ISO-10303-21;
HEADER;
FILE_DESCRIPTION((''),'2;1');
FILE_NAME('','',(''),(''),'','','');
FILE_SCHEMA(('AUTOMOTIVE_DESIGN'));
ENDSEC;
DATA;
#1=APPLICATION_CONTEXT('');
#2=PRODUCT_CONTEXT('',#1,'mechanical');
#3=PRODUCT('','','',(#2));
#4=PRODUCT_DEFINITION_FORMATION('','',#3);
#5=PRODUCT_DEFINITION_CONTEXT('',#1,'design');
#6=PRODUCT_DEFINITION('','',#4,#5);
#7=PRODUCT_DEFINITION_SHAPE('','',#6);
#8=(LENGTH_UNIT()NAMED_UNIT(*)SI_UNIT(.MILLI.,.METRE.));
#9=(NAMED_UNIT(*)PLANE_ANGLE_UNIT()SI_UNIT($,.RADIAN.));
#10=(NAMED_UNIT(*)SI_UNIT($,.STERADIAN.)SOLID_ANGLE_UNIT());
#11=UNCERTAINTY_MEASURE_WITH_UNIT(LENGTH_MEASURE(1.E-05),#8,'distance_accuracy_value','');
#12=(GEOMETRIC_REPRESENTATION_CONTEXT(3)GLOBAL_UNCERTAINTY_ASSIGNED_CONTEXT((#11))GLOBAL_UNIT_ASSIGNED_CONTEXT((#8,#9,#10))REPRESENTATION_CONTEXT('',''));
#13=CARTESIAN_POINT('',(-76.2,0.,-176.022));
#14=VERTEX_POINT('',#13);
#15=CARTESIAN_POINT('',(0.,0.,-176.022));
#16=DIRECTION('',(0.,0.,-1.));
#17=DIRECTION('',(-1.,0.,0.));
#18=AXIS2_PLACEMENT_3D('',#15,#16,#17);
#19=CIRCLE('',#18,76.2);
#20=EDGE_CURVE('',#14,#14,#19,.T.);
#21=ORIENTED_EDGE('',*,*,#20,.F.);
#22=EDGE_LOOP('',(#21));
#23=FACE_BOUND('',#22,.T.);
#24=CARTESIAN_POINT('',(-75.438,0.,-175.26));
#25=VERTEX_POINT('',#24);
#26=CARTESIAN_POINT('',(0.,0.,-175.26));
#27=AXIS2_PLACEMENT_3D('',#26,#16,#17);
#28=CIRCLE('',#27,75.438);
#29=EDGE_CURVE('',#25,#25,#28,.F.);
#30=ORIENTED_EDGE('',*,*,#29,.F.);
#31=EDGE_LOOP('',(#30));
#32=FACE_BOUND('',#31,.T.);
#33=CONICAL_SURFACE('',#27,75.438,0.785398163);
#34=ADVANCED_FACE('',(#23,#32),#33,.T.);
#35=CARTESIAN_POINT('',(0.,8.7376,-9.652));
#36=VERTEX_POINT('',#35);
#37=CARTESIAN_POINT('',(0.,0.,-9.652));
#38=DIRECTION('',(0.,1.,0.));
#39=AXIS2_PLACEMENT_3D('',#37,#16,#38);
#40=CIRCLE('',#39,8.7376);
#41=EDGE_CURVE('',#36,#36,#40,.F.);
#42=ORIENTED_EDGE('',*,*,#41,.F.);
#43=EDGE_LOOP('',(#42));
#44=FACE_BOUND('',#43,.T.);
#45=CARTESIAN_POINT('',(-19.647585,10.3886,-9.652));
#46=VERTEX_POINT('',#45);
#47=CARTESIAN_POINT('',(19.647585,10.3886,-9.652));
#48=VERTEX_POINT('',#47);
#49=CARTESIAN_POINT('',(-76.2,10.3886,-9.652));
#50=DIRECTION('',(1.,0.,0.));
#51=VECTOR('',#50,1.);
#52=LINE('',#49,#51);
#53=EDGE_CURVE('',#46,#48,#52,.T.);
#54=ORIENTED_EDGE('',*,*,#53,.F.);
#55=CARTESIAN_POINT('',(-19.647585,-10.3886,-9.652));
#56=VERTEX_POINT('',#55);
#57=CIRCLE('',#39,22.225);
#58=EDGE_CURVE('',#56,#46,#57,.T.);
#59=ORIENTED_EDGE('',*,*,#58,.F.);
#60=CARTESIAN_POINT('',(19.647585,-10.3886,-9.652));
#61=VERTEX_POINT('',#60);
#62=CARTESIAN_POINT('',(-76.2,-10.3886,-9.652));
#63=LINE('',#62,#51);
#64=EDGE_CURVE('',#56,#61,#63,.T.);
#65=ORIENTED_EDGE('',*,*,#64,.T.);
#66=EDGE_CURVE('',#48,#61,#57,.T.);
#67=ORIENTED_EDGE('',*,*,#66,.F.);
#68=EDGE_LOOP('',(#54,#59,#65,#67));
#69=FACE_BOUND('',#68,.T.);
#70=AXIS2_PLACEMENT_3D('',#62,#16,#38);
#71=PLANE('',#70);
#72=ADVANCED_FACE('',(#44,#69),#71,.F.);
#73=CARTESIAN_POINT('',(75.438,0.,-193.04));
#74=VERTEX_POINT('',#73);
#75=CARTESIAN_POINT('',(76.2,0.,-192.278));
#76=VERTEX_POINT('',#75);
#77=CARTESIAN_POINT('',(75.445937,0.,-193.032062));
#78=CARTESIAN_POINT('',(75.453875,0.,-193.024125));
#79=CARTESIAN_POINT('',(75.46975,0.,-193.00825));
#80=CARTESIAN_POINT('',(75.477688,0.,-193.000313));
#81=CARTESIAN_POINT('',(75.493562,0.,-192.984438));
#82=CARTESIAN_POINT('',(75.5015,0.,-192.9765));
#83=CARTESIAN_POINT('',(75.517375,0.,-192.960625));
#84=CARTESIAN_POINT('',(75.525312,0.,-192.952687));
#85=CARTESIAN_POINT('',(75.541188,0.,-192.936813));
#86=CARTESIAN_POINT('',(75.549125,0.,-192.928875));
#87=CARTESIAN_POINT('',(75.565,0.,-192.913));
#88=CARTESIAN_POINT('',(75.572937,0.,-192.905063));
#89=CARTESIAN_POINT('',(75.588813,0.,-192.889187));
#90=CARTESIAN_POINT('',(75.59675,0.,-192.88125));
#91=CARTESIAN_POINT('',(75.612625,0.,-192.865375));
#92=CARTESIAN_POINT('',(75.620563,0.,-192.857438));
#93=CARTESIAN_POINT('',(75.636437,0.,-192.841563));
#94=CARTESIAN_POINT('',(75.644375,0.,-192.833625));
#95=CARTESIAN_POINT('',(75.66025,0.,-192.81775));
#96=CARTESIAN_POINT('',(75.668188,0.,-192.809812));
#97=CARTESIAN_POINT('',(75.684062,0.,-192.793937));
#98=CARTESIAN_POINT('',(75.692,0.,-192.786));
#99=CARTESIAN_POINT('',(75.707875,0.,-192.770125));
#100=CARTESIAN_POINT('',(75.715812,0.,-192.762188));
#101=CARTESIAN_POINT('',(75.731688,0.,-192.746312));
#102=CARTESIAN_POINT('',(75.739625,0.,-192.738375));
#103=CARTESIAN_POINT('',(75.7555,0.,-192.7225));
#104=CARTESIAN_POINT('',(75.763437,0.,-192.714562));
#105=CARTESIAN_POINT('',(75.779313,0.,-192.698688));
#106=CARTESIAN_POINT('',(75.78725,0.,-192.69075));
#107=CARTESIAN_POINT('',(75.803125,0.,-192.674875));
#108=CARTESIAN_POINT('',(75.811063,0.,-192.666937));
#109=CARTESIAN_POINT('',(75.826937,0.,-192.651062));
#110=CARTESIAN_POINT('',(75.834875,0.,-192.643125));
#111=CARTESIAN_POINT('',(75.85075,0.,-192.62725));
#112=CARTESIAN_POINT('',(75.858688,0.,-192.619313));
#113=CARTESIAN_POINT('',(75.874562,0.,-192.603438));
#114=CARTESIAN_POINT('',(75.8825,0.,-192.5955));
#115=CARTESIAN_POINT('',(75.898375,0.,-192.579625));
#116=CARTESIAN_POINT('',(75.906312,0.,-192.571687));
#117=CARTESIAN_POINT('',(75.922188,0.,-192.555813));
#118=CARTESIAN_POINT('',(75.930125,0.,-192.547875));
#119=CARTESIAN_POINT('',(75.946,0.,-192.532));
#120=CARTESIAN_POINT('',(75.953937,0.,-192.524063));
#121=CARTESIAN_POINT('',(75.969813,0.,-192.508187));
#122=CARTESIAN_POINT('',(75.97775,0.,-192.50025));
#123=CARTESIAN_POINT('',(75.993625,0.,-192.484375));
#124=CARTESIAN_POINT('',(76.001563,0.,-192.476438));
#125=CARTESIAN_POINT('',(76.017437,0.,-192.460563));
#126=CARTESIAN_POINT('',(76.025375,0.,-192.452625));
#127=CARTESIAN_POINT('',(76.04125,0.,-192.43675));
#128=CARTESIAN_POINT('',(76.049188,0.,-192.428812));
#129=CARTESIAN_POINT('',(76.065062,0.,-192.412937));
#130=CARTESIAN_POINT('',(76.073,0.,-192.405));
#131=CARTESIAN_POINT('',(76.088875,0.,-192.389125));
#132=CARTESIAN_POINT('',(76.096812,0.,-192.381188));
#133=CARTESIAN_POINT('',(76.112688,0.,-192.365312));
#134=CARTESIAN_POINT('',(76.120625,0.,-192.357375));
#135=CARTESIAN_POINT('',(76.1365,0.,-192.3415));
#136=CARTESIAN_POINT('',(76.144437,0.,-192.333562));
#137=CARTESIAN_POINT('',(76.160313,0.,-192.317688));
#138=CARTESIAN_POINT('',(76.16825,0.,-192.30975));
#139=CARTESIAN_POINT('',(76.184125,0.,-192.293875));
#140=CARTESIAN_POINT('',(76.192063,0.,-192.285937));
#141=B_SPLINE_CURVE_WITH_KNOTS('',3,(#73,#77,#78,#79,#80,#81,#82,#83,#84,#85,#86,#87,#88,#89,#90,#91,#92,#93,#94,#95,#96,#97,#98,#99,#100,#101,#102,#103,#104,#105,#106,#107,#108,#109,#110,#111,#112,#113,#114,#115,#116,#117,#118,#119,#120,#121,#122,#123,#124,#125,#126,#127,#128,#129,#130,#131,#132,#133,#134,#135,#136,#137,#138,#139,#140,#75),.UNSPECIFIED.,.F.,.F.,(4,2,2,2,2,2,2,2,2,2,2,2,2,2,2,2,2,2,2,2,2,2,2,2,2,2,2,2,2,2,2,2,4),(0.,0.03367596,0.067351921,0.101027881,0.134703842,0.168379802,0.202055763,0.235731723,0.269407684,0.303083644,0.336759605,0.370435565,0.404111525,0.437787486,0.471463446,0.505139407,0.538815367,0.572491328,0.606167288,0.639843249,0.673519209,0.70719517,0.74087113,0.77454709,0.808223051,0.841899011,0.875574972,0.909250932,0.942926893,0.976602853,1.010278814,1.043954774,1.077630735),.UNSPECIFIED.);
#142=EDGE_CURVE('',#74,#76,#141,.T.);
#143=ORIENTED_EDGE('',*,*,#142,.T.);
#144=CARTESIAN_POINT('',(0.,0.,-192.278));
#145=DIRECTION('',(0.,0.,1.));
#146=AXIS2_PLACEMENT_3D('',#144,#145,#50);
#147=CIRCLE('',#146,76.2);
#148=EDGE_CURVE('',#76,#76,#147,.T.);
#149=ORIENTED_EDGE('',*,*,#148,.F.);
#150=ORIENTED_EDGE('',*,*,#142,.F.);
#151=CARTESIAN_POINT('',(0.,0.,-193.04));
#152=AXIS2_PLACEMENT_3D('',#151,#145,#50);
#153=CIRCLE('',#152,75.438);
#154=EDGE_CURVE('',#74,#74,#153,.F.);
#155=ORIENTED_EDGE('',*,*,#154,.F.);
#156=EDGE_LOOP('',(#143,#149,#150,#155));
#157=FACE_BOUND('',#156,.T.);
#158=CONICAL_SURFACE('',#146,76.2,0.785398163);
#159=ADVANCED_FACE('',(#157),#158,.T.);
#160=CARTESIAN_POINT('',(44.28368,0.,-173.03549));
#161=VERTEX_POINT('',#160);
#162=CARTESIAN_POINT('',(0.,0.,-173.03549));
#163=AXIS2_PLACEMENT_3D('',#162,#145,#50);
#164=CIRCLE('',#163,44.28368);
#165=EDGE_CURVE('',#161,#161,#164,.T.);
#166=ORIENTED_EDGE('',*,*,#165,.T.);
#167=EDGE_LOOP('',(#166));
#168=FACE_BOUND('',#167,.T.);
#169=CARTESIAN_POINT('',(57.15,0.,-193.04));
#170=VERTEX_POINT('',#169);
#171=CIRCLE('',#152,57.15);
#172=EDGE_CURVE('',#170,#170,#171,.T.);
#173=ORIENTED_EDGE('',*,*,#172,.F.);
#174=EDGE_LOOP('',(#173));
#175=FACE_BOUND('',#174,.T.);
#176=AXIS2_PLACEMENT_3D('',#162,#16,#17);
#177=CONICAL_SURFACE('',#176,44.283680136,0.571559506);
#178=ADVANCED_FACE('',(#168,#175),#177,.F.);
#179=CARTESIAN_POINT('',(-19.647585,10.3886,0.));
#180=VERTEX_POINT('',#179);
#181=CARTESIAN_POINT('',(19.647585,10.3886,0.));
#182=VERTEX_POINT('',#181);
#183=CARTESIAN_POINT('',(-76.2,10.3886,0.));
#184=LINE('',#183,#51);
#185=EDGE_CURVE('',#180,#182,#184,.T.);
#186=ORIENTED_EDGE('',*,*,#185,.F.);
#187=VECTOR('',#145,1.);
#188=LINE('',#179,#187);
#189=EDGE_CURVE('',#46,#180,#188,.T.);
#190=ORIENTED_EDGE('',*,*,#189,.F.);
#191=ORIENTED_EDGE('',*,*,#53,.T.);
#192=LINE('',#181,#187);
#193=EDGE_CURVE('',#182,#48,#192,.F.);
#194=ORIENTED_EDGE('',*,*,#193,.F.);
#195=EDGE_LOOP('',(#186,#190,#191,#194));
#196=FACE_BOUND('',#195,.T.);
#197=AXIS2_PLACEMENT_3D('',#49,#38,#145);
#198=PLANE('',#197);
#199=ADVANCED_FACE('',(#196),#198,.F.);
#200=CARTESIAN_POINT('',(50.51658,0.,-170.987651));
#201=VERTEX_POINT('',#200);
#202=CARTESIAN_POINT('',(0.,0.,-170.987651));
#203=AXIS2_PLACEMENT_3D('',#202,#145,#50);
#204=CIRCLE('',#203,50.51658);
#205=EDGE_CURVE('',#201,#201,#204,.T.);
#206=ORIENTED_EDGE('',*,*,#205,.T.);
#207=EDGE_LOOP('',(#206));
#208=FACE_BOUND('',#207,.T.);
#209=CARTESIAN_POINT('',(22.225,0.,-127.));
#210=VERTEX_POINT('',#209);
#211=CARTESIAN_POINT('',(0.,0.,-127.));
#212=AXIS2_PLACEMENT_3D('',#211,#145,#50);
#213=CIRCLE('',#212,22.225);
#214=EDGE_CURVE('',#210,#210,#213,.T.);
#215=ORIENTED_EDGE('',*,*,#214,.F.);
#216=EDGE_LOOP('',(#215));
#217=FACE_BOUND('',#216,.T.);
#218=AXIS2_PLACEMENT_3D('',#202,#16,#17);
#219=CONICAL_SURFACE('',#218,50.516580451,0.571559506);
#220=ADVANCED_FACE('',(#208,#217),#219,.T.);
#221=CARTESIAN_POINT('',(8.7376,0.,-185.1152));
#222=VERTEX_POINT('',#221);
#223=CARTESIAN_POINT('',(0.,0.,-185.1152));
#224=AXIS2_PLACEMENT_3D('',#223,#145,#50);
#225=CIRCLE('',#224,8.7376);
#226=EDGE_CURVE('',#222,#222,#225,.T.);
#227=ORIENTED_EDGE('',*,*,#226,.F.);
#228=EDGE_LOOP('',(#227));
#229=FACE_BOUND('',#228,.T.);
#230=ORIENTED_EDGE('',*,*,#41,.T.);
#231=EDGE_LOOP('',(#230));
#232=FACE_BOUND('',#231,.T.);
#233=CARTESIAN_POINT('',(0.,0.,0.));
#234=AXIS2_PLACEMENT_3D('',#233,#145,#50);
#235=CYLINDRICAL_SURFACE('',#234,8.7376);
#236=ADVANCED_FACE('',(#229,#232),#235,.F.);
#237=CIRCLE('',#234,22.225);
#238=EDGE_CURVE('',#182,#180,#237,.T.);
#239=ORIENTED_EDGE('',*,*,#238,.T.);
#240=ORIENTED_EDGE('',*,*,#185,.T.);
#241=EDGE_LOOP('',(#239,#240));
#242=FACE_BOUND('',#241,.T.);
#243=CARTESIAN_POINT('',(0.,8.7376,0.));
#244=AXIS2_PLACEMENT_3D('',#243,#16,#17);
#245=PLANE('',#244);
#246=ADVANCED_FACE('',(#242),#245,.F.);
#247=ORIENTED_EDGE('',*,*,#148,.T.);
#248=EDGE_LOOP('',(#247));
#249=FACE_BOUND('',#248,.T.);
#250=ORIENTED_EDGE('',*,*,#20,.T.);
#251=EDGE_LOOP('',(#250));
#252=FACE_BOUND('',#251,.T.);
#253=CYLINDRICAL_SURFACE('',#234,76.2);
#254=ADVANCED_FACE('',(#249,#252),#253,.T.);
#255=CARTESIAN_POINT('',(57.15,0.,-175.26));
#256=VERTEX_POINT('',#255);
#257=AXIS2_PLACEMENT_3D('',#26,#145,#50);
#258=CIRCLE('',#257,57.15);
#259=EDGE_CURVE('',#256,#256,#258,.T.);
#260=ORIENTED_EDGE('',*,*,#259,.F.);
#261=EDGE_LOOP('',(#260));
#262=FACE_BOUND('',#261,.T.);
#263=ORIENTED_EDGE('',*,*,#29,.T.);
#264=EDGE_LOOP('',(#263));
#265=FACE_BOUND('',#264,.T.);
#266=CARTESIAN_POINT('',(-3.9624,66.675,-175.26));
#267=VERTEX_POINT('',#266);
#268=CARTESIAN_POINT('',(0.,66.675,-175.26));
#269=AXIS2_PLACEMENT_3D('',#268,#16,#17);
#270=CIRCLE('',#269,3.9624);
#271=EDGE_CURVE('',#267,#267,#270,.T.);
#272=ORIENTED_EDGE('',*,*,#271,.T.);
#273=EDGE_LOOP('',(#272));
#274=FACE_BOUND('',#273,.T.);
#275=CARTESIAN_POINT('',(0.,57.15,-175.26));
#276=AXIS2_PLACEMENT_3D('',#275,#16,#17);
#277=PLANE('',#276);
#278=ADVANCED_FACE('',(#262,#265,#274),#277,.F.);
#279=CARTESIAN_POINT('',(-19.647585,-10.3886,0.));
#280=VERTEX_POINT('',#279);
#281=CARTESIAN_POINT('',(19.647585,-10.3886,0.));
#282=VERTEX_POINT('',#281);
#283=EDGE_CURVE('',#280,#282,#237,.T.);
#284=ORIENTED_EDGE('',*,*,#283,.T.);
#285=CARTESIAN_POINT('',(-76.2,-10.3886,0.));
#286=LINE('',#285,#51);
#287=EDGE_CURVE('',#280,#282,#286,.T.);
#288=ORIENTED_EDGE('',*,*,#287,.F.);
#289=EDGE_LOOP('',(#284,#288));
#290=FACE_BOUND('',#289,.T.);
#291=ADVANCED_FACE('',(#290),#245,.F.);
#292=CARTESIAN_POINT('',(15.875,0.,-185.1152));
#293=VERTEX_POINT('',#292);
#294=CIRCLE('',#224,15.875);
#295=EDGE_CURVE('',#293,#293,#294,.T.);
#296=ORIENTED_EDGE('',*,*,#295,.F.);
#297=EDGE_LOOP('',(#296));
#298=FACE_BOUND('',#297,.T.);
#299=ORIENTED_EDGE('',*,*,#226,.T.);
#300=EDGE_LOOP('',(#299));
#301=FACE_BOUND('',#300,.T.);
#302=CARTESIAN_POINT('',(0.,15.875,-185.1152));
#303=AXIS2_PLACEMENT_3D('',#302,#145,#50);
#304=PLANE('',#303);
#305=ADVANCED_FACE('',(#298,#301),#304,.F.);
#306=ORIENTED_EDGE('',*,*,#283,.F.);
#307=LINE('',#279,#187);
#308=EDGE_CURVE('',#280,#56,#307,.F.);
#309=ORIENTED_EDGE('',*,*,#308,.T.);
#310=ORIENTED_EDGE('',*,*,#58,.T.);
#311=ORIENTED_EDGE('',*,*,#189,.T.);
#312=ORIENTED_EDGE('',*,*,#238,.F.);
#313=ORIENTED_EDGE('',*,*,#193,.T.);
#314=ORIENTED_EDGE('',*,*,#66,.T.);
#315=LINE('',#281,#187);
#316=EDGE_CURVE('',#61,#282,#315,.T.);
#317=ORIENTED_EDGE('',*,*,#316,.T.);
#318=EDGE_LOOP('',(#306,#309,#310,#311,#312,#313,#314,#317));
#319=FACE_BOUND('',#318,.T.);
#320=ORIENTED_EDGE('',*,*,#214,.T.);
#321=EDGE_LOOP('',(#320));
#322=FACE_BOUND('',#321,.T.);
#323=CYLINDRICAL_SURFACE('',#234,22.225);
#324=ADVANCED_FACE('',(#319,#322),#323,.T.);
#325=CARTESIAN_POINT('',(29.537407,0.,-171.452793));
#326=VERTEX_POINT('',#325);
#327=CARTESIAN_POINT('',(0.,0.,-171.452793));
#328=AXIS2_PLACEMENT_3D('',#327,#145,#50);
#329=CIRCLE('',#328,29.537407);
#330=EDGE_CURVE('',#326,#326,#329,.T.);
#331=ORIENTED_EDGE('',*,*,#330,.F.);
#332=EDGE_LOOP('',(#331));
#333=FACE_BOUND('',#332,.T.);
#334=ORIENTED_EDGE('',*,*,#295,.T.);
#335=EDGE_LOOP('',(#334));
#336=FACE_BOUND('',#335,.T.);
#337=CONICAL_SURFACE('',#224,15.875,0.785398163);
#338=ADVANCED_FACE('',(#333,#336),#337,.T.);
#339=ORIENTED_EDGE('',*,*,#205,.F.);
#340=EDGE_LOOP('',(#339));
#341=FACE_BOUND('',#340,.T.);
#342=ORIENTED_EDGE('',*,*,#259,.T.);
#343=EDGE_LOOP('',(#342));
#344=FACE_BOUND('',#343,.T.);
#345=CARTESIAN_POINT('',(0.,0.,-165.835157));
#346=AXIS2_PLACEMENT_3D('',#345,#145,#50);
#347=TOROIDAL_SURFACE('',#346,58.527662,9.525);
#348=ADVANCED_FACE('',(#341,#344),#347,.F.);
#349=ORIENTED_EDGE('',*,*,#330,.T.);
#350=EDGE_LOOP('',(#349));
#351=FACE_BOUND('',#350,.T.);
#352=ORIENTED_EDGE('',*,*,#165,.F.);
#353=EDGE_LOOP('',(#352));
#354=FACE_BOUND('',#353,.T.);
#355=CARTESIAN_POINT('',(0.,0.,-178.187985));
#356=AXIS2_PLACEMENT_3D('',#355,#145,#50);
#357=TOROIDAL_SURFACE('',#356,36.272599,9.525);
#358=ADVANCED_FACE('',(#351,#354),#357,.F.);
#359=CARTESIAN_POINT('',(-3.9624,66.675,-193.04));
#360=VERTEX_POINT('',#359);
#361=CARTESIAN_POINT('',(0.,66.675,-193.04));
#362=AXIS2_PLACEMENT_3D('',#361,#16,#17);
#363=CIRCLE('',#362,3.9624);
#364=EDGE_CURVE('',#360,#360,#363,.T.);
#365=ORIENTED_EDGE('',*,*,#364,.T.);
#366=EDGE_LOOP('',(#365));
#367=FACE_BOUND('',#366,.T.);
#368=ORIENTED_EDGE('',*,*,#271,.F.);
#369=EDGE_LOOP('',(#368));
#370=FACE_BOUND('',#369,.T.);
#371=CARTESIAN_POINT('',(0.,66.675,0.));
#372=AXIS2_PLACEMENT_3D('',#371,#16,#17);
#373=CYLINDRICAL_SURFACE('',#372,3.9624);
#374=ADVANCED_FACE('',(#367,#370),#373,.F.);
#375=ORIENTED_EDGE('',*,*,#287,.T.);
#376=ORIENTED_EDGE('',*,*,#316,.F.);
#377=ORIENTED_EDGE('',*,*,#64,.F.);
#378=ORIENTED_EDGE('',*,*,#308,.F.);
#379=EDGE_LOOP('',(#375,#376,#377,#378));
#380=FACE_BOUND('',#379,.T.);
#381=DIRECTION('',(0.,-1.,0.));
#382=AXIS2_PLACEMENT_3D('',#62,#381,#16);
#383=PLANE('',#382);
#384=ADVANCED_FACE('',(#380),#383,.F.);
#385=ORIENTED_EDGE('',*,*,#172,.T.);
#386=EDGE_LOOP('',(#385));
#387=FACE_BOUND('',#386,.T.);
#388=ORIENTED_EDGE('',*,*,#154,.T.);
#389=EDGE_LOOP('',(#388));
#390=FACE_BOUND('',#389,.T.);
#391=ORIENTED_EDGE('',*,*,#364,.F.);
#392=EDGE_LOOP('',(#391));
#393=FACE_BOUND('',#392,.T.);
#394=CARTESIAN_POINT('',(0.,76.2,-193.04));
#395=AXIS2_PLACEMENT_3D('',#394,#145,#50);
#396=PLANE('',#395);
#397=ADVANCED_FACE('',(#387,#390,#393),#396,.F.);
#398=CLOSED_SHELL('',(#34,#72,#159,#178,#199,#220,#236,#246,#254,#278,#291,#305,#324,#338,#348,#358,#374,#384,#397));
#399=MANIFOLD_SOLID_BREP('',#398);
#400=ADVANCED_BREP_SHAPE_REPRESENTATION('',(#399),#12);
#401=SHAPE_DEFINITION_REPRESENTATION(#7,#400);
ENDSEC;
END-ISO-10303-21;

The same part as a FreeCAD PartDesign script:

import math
import FreeCAD as App
import Part
import Sketcher

V = App.Vector
Q = App.Units.Quantity


def edges_at(feature, points):
    """Names of the edges that pass closest to the given points."""
    edges = feature.Shape.Edges
    near = lambda p: min(range(len(edges)), key=lambda i: edges[i].distToShape(Part.Vertex(*p))[0])
    return sorted({f"Edge{near(p) + 1}" for p in points})


def add_polygon(sketch, points):
    """Adds a closed chain of lines whose ends are joined by coincident constraints."""
    first, n = sketch.GeometryCount, len(points)
    for a, b in zip(points, points[1:] + points[:1]):
        sketch.addGeometry(Part.LineSegment(App.Vector(*a, 0), App.Vector(*b, 0)), False)
    for i in range(n):
        sketch.addConstraint(Sketcher.Constraint("Coincident", first + i, 2, first + (i + 1) % n, 1))

doc = App.newDocument("Part")
body = doc.addObject("PartDesign::Body", "Body")

# Sketch on YZ plane
sketch1 = body.newObject("Sketcher::SketchObject", "Sketch")
sketch1.AttachmentSupport = (doc.getObject("YZ_Plane"), [""])
sketch1.MapMode = "FlatFace"
sketch1.addGeometry(Part.LineSegment(V(22, 0, 0), V(9, 0, 0)), False)
sketch1.addGeometry(Part.LineSegment(V(9, 0, 0), V(9, -185, 0)), False)
sketch1.addGeometry(Part.LineSegment(V(9, -185, 0), V(16, -185, 0)), False)
sketch1.addGeometry(Part.LineSegment(V(16, -185, 0), V(30, -171, 0)), False)
sketch1.addGeometry(Part.ArcOfCircle(Part.Circle(V(36, -178, 0), V(0, 0, 1), 10), math.radians(33), math.radians(135)), False)
sketch1.addGeometry(Part.LineSegment(V(44, -173, 0), V(57, -193, 0)), False)
sketch1.addGeometry(Part.LineSegment(V(57, -193, 0), V(76, -193, 0)), False)
sketch1.addGeometry(Part.LineSegment(V(76, -193, 0), V(76, -175, 0)), False)
sketch1.addGeometry(Part.LineSegment(V(76, -175, 0), V(57, -175, 0)), False)
sketch1.addGeometry(Part.ArcOfCircle(Part.Circle(V(59, -166, 0), V(0, 0, 1), 10), math.radians(-147), math.radians(-98)), False)
sketch1.addGeometry(Part.LineSegment(V(51, -171, 0), V(22, -127, 0)), False)
sketch1.addGeometry(Part.LineSegment(V(22, -127, 0), V(22, 0, 0)), False)
sketch1.addConstraint(Sketcher.Constraint("Coincident", 0, 2, 1, 1))
sketch1.addConstraint(Sketcher.Constraint("Coincident", 1, 2, 2, 1))
sketch1.addConstraint(Sketcher.Constraint("Coincident", 2, 2, 3, 1))
sketch1.addConstraint(Sketcher.Constraint("Tangent", 3, 2, 4, 2))
sketch1.addConstraint(Sketcher.Constraint("Tangent", 4, 1, 5, 1))
sketch1.addConstraint(Sketcher.Constraint("Coincident", 5, 2, 6, 1))
sketch1.addConstraint(Sketcher.Constraint("Coincident", 6, 2, 7, 1))
sketch1.addConstraint(Sketcher.Constraint("Coincident", 7, 2, 8, 1))
sketch1.addConstraint(Sketcher.Constraint("Coincident", 8, 2, 9, 2))
sketch1.addConstraint(Sketcher.Constraint("Tangent", 9, 1, 10, 1))
sketch1.addConstraint(Sketcher.Constraint("Coincident", 10, 2, 11, 1))
sketch1.addConstraint(Sketcher.Constraint("Coincident", 11, 2, 0, 1))
sketch1.addConstraint(Sketcher.Constraint("Horizontal", 0))
sketch1.addConstraint(Sketcher.Constraint("Vertical", 1))
sketch1.addConstraint(Sketcher.Constraint("Horizontal", 2))
sketch1.addConstraint(Sketcher.Constraint("Horizontal", 6))
sketch1.addConstraint(Sketcher.Constraint("Vertical", 7))
sketch1.addConstraint(Sketcher.Constraint("Horizontal", 8))
sketch1.addConstraint(Sketcher.Constraint("Vertical", 11))
sketch1.addConstraint(Sketcher.Constraint("Equal", 4, 9))
sketch1.addConstraint(Sketcher.Constraint("PointOnObject", 0, 2, -1))
sketch1.addConstraint(Sketcher.Constraint("Parallel", 5, 10))
sketch1.addConstraint(Sketcher.Constraint("Vertical", 5, 2, 8, 2))
sketch1.addConstraint(Sketcher.Constraint("DistanceY", 11, 1, 11, 2, Q("5 in")))
sketch1.addConstraint(Sketcher.Constraint("DistanceY", 7, 1, 7, 2, Q("0.7 in")))
sketch1.addConstraint(Sketcher.Constraint("DistanceX", -1, 1, 6, 2, Q("3 in")))
sketch1.addConstraint(Sketcher.Constraint("Angle", 3, Q("45 deg")))
sketch1.addConstraint(Sketcher.Constraint("Radius", 4, Q("0.375 in")))
sketch1.addConstraint(Sketcher.Constraint("DistanceX", 6, 1, 6, 2, Q("0.75 in")))
sketch1.addConstraint(Sketcher.Constraint("DistanceY", 5, 2, -1, 1, Q("7.6 in")))
sketch1.addConstraint(Sketcher.Constraint("DistanceX", 0, 2, 0, 1, Q("0.531 in")))
sketch1.addConstraint(Sketcher.Constraint("DistanceX", 2, 1, 2, 2, Q("0.281 in")))
sketch1.addConstraint(Sketcher.Constraint("DistanceY", 1, 2, 1, 1, Q("7.288 in")))
sketch1.addConstraint(Sketcher.Constraint("DistanceX", -1, 1, 0, 2, Q("0.344 in")))
sketch1.addConstraint(Sketcher.Constraint("DistanceX", -1, 1, 4, 3, 36.272599))
revolution = body.newObject("PartDesign::Revolution", "Revolution")
revolution.Profile = sketch1
revolution.ReferenceAxis = (sketch1, ["V_Axis"])
revolution.Angle = 360
doc.recompute()

chamfer = body.newObject("PartDesign::Chamfer", "Chamfer")
chamfer.Base = (revolution, edges_at(revolution, [(-76.2, 0, -193.04), (-76.2, 0, -175.26)]))
chamfer.Size = Q("0.03 in")

# Sketch on YZ plane
sketch2 = body.newObject("Sketcher::SketchObject", "Sketch001")
sketch2.AttachmentSupport = (doc.getObject("YZ_Plane"), [""])
sketch2.MapMode = "FlatFace"
add_polygon(sketch2, [(10, 0), (-10, 0), (-10, -10), (10, -10)])  # lines 0-3
sketch2.addConstraint(Sketcher.Constraint("Horizontal", 0))
sketch2.addConstraint(Sketcher.Constraint("Vertical", 1))
sketch2.addConstraint(Sketcher.Constraint("Horizontal", 2))
sketch2.addConstraint(Sketcher.Constraint("Vertical", 3))
sketch2.addConstraint(Sketcher.Constraint("Symmetric", 0, 2, 3, 2, -1, 1))
sketch2.addConstraint(Sketcher.Constraint("DistanceY", 1, 2, 1, 1, Q("0.38 in")))
sketch2.addConstraint(Sketcher.Constraint("DistanceX", 0, 2, 0, 1, Q("0.818 in")))
pocket1 = body.newObject("PartDesign::Pocket", "Pocket")
pocket1.Profile = sketch2
pocket1.Type = "ThroughAll"
pocket1.Midplane = True

# Sketch on XY plane
sketch3 = body.newObject("Sketcher::SketchObject", "Sketch002")
sketch3.AttachmentSupport = (doc.getObject("XY_Plane"), [""])
sketch3.MapMode = "FlatFace"
sketch3.AttachmentOffset = App.Placement(V(0, 0, -7.6 * 25.4), App.Rotation())
sketch3.addGeometry(Part.Circle(V(0, 66.7, 0), V(0, 0, 1), 4), False)
sketch3.addConstraint(Sketcher.Constraint("PointOnObject", 0, 3, -2))
sketch3.addConstraint(Sketcher.Constraint("Diameter", 0, Q("0.312 in")))
sketch3.addConstraint(Sketcher.Constraint("DistanceY", -1, 1, 0, 3, Q("2.625 in")))
pocket2 = body.newObject("PartDesign::Pocket", "Pocket001")
pocket2.Profile = sketch3
pocket2.Type = "ThroughAll"
pocket2.Reversed = True

doc.recompute()
